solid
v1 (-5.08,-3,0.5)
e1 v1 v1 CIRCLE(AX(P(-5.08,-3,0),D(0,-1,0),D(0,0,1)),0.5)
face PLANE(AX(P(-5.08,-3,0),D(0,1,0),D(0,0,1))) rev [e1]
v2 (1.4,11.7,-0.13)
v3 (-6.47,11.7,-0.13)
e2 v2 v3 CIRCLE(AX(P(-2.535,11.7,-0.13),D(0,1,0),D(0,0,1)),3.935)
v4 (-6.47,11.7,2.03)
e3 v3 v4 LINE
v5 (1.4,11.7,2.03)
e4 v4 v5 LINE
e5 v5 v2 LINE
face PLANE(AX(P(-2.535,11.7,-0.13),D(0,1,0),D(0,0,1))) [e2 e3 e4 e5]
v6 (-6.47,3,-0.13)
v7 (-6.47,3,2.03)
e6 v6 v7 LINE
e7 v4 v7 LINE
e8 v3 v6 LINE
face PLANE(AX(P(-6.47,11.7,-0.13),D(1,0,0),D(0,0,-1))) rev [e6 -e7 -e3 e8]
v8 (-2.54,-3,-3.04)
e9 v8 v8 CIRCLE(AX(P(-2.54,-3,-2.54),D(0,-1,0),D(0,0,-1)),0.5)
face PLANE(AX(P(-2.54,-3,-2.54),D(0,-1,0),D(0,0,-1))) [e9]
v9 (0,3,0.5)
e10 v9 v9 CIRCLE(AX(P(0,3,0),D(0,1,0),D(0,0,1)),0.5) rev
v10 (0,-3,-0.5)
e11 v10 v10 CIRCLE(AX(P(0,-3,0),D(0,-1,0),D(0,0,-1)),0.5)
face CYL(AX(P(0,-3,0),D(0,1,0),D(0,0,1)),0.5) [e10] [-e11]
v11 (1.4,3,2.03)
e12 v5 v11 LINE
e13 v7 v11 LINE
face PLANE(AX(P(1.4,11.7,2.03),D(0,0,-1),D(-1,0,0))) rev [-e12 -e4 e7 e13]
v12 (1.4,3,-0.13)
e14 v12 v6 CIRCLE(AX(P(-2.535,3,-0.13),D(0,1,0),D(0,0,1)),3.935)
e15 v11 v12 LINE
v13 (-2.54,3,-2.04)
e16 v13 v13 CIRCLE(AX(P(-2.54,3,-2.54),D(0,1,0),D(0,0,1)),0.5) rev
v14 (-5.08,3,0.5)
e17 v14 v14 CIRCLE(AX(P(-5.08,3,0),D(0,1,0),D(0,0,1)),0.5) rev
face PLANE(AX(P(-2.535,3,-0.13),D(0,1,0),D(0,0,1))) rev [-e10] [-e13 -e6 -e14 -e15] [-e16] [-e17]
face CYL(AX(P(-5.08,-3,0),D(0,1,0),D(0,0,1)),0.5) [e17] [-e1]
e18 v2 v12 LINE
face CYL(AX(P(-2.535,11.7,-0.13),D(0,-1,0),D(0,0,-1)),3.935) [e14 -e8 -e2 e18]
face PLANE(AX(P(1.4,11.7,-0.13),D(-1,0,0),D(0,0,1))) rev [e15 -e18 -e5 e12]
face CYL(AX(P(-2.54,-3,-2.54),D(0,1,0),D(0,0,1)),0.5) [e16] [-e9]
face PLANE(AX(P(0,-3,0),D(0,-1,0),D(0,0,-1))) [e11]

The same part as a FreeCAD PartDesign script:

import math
import FreeCAD as App
import Part
import Sketcher
from FreeCAD import Vector

doc = App.newDocument("Part")
body = doc.addObject("PartDesign::Body", "Body")

# Sketch on XZ plane
sketch1 = body.newObject("Sketcher::SketchObject", "Sketch")
sketch1.AttachmentSupport = (doc.getObject("XZ_Plane"), [""])
sketch1.MapMode = "FlatFace"
sketch1.AttachmentOffset = App.Placement(Vector(0, 0, -3), App.Rotation())
sketch1.addGeometry(Part.LineSegment(Vector(1.4, 2, 0), Vector(1.4, -0.1, 0)), False)
sketch1.addGeometry(Part.ArcOfCircle(Part.Circle(Vector(-2.5, -0.1, 0), Vector(0, 0, 1), 3.9), math.radians(180), math.radians(360)), False)
sketch1.addGeometry(Part.LineSegment(Vector(-6.5, -0.1, 0), Vector(-6.5, 2, 0)), False)
sketch1.addGeometry(Part.LineSegment(Vector(-6.5, 2, 0), Vector(1.4, 2, 0)), False)
sketch1.addConstraint(Sketcher.Constraint("Tangent", 0, 2, 1, 2))
sketch1.addConstraint(Sketcher.Constraint("Tangent", 1, 1, 2, 1))
sketch1.addConstraint(Sketcher.Constraint("Coincident", 2, 2, 3, 1))
sketch1.addConstraint(Sketcher.Constraint("Coincident", 3, 2, 0, 1))
sketch1.addConstraint(Sketcher.Constraint("Vertical", 0))
sketch1.addConstraint(Sketcher.Constraint("Vertical", 2))
sketch1.addConstraint(Sketcher.Constraint("Horizontal", 3))
sketch1.addConstraint(Sketcher.Constraint("Radius", 1, 3.935))
sketch1.addConstraint(Sketcher.Constraint("DistanceY", 0, 2, 0, 1, 2.16))
sketch1.addConstraint(Sketcher.Constraint("DistanceX", -1, 1, 0, 2, 1.4))
sketch1.addConstraint(Sketcher.Constraint("DistanceY", 1, 3, -1, 1, 0.13))
pad1 = body.newObject("PartDesign::Pad", "Pad")
pad1.Profile = sketch1
pad1.Length = 8.7
pad1.Reversed = True

# Sketch on XZ plane
sketch2 = body.newObject("Sketcher::SketchObject", "Sketch001")
sketch2.AttachmentSupport = (doc.getObject("XZ_Plane"), [""])
sketch2.MapMode = "FlatFace"
sketch2.AttachmentOffset = App.Placement(Vector(0, 0, -3), App.Rotation())
sketch2.addGeometry(Part.Circle(Vector(0, 0, 0), Vector(0, 0, 1), 0.5), False)
sketch2.addGeometry(Part.Circle(Vector(-2.5, -2.5, 0), Vector(0, 0, 1), 0.5), False)
sketch2.addGeometry(Part.Circle(Vector(-5.1, 0, 0), Vector(0, 0, 1), 0.5), False)
sketch2.addConstraint(Sketcher.Constraint("Coincident", 0, 3, -1, 1))
sketch2.addConstraint(Sketcher.Constraint("Equal", 0, 1))
sketch2.addConstraint(Sketcher.Constraint("Equal", 1, 2))
sketch2.addConstraint(Sketcher.Constraint("PointOnObject", 2, 3, -1))
sketch2.addConstraint(Sketcher.Constraint("Diameter", 0, 1.0))
sketch2.addConstraint(Sketcher.Constraint("DistanceX", 1, 3, -1, 1, 2.54))
sketch2.addConstraint(Sketcher.Constraint("DistanceY", 1, 3, -1, 1, 2.54))
sketch2.addConstraint(Sketcher.Constraint("DistanceX", 2, 3, -1, 1, 5.08))
pad2 = body.newObject("PartDesign::Pad", "Pad001")
pad2.Profile = sketch2
pad2.Length = 6

doc.recompute()
